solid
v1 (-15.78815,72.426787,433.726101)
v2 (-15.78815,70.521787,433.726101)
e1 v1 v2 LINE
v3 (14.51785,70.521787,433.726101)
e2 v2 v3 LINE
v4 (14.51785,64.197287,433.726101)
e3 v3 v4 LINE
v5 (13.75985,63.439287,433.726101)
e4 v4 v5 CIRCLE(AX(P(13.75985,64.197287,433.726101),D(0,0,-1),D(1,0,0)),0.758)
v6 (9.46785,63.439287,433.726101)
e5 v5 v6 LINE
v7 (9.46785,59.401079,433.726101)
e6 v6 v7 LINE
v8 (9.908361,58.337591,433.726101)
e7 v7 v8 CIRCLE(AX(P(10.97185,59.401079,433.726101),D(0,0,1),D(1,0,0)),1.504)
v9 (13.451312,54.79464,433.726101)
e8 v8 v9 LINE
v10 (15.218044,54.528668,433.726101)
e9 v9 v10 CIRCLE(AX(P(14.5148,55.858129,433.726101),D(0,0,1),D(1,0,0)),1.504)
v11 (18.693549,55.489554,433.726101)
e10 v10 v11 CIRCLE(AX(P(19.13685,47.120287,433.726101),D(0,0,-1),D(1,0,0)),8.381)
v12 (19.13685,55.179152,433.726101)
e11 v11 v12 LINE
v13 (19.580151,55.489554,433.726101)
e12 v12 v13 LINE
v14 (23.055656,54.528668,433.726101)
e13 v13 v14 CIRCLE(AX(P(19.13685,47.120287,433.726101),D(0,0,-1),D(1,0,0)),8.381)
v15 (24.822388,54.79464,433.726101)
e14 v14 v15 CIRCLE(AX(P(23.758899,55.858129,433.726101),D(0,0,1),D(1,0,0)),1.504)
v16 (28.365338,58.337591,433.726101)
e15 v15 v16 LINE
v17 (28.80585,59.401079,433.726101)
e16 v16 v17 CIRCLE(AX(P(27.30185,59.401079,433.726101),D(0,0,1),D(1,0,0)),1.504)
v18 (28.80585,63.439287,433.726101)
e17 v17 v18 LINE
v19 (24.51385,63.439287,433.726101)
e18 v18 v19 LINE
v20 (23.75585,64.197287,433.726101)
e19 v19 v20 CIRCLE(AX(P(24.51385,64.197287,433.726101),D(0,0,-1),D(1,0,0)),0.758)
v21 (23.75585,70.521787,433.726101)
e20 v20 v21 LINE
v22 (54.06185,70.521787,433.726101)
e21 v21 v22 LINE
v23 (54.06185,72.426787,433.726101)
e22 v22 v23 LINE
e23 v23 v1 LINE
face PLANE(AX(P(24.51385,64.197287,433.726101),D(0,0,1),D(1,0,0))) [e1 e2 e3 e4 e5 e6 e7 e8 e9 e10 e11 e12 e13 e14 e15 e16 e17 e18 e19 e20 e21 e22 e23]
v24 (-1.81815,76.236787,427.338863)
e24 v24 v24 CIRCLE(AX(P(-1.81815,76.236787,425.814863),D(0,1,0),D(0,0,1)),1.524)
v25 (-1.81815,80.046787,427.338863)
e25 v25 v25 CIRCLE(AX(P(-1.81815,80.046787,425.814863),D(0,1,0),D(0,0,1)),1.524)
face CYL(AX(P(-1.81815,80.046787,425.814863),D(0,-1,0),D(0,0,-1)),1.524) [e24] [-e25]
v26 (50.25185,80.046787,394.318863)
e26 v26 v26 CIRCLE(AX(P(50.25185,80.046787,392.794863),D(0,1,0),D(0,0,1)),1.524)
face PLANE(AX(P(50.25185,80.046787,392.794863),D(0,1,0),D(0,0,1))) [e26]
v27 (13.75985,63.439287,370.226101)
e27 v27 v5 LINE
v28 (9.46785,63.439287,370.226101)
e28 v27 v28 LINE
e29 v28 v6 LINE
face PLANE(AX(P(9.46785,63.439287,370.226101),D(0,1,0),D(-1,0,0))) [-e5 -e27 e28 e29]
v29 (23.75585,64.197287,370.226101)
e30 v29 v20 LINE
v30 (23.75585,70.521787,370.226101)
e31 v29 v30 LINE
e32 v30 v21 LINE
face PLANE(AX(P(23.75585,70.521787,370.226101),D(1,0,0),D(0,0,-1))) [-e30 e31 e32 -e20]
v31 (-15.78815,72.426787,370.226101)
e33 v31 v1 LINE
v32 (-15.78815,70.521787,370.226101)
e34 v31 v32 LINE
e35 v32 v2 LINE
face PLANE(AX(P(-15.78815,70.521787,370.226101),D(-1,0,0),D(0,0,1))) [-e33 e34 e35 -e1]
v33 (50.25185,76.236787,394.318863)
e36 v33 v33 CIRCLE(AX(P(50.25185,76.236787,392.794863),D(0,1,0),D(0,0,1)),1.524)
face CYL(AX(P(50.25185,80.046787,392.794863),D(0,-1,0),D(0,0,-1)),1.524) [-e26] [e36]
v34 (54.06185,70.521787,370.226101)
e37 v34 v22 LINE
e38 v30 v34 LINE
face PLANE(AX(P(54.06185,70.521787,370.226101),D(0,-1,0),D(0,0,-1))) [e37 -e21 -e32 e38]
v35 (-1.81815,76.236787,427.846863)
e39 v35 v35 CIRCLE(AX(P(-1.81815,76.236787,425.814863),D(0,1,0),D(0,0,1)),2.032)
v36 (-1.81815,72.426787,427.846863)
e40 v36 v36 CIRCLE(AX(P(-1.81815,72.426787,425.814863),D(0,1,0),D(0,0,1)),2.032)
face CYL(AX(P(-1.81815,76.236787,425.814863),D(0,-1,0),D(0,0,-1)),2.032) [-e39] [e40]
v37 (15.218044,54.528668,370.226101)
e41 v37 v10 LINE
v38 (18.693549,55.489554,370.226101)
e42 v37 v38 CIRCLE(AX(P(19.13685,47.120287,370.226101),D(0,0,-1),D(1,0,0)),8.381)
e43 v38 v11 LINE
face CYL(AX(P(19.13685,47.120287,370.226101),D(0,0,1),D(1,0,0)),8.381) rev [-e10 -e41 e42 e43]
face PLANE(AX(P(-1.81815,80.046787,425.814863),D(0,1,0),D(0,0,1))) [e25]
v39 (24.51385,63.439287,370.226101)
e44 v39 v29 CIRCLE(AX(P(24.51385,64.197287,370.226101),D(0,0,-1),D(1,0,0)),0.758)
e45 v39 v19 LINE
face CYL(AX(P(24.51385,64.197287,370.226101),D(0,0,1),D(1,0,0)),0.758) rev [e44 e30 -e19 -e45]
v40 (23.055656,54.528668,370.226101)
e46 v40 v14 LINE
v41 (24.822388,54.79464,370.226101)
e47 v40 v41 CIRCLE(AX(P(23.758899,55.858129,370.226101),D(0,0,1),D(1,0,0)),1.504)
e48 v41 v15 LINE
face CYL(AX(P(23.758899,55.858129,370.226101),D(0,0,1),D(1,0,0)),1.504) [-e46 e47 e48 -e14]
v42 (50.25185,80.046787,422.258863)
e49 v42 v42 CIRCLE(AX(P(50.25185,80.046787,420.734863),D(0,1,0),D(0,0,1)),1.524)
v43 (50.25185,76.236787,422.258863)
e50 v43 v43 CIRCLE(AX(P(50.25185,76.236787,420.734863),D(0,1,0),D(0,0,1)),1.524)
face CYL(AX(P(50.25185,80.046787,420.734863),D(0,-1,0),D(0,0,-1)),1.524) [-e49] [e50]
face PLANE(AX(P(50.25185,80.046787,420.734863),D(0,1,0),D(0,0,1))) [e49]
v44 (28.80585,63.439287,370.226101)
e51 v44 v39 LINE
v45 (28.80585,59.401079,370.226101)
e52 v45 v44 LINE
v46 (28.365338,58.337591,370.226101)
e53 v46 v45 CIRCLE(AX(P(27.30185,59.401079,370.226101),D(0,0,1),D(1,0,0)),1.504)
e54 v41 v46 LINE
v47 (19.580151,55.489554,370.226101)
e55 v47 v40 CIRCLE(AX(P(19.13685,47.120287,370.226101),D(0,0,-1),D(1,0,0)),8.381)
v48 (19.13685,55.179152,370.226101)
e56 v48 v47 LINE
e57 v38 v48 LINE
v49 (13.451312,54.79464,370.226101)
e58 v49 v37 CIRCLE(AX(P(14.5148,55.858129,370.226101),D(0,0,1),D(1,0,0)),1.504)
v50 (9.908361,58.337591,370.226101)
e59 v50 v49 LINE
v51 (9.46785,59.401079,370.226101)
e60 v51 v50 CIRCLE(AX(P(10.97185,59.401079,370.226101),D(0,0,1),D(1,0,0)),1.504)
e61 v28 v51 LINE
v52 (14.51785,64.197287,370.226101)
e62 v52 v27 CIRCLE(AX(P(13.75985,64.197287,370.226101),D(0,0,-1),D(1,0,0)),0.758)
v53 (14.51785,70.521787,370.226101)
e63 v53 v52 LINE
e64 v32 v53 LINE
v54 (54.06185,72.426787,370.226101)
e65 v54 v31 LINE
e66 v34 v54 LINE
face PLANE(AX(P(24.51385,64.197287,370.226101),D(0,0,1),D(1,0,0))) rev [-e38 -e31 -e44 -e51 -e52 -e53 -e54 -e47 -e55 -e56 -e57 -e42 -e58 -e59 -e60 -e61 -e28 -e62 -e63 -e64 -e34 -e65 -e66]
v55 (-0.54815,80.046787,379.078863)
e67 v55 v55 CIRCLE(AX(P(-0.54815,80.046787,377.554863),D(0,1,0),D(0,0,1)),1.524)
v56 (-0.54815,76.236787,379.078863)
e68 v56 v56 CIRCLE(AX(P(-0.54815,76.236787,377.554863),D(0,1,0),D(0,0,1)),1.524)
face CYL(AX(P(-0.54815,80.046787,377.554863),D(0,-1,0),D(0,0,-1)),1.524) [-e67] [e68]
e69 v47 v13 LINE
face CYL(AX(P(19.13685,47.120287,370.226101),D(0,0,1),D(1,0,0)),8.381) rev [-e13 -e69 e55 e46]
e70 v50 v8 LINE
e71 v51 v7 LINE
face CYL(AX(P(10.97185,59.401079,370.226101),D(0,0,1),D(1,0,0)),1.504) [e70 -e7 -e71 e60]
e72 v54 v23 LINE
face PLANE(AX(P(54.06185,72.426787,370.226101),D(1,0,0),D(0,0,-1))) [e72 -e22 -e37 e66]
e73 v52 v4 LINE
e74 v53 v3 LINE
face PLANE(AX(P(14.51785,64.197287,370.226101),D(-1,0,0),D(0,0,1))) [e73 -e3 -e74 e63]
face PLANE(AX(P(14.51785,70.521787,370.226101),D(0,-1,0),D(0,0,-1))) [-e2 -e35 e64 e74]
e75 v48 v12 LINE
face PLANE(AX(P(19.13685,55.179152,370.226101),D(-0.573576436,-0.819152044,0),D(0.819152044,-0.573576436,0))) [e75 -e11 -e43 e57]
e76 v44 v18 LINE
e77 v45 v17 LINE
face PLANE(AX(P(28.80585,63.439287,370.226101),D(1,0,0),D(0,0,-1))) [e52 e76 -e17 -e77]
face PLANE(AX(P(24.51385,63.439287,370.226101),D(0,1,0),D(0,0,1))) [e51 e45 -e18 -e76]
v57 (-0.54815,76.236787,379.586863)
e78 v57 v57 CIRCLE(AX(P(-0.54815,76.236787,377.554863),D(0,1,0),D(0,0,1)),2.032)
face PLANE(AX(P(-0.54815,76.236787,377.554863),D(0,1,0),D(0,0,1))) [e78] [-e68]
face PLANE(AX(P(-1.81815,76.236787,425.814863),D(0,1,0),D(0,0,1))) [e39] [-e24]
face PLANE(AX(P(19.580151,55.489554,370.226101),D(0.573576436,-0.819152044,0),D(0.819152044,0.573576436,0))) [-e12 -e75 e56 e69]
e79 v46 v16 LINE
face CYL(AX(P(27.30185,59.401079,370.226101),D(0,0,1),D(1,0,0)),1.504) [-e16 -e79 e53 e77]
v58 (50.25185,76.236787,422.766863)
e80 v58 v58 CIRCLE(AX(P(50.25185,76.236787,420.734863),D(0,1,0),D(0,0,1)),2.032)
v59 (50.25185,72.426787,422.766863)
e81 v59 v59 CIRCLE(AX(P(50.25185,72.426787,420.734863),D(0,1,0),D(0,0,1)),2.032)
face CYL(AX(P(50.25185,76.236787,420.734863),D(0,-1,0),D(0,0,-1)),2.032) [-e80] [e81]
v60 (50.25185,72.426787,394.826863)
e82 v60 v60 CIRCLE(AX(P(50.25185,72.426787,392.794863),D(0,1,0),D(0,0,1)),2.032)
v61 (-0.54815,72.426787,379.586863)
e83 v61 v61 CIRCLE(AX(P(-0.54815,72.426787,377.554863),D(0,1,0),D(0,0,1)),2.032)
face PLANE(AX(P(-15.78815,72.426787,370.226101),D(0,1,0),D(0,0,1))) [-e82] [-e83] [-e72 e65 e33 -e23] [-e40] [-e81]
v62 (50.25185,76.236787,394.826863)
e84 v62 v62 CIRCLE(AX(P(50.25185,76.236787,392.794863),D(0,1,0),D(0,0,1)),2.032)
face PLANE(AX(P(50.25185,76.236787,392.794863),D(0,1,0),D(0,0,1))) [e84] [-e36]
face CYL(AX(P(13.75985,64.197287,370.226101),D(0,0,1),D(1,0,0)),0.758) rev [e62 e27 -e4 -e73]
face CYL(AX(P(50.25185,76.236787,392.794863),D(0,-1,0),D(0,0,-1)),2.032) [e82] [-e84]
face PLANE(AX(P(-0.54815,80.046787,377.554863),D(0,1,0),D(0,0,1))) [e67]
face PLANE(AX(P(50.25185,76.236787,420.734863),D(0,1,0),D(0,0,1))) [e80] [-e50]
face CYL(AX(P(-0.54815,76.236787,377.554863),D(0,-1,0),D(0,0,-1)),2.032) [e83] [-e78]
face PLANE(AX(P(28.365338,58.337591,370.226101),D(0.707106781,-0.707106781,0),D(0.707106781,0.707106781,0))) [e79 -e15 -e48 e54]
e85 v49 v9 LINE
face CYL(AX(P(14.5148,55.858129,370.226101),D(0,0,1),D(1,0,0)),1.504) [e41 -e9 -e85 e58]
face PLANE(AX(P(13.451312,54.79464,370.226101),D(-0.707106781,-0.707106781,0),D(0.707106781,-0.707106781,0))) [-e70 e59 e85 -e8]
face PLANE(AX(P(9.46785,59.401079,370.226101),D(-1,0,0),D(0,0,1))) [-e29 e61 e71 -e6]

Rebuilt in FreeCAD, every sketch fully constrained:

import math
import FreeCAD as App
import Part
import Sketcher

V = App.Vector
Q = App.Units.Quantity

doc = App.newDocument("Part")
body = doc.addObject("PartDesign::Body", "Body")

# Sketch on XY plane
sketch1 = body.newObject("Sketcher::SketchObject", "Sketch")
sketch1.AttachmentSupport = (doc.getObject("XY_Plane"), [""])
sketch1.MapMode = "FlatFace"
sketch1.AttachmentOffset = App.Placement(V(0, 0, 433.726101), App.Rotation())
sketch1.addGeometry([
    Part.ArcOfCircle(Part.Circle(V(13.75985, 64.197287, 0), V(0, 0, 1), 0.758), math.radians(-90), math.radians(0)),  # 0
    Part.LineSegment(V(13.75985, 63.439287, 0), V(9.46785, 63.439287, 0)),  # 1
    Part.LineSegment(V(9.46785, 63.439287, 0), V(9.46785, 59.401079, 0)),  # 2
    Part.ArcOfCircle(Part.Circle(V(10.97185, 59.401079, 0), V(0, 0, 1), 1.504), math.radians(180), math.radians(225)),  # 3
    Part.LineSegment(V(9.908361, 58.337591, 0), V(13.451312, 54.79464, 0)),  # 4
    Part.ArcOfCircle(Part.Circle(V(14.5148, 55.858129, 0), V(0, 0, 1), 1.504), math.radians(-135), math.radians(-62.122538)),  # 5
    Part.ArcOfCircle(Part.Circle(V(19.13685, 47.120287, 0), V(0, 0, 1), 8.381), math.radians(93.031994), math.radians(117.877462)),  # 6
    Part.LineSegment(V(18.693549, 55.489554, 0), V(19.13685, 55.179152, 0)),  # 7
    Part.LineSegment(V(19.13685, 55.179152, 0), V(19.580151, 55.489554, 0)),  # 8
    Part.ArcOfCircle(Part.Circle(V(19.13685, 47.120287, 0), V(0, 0, 1), 8.381), math.radians(62.122538), math.radians(86.968006)),  # 9
    Part.ArcOfCircle(Part.Circle(V(23.758899, 55.858129, 0), V(0, 0, 1), 1.504), math.radians(-117.877462), math.radians(-45)),  # 10
    Part.LineSegment(V(24.822388, 54.79464, 0), V(28.365338, 58.337591, 0)),  # 11
    Part.ArcOfCircle(Part.Circle(V(27.30185, 59.401079, 0), V(0, 0, 1), 1.504), math.radians(-45), math.radians(0)),  # 12
    Part.LineSegment(V(28.80585, 59.401079, 0), V(28.80585, 63.439287, 0)),  # 13
    Part.LineSegment(V(28.80585, 63.439287, 0), V(24.51385, 63.439287, 0)),  # 14
    Part.ArcOfCircle(Part.Circle(V(24.51385, 64.197287, 0), V(0, 0, 1), 0.758), math.radians(180), math.radians(270)),  # 15
    Part.LineSegment(V(23.75585, 64.197287, 0), V(23.75585, 70.521787, 0)),  # 16
    Part.LineSegment(V(23.75585, 70.521787, 0), V(54.06185, 70.521787, 0)),  # 17
    Part.LineSegment(V(54.06185, 70.521787, 0), V(54.06185, 72.426787, 0)),  # 18
    Part.LineSegment(V(54.06185, 72.426787, 0), V(-15.78815, 72.426787, 0)),  # 19
    Part.LineSegment(V(-15.78815, 72.426787, 0), V(-15.78815, 70.521787, 0)),  # 20
    Part.LineSegment(V(-15.78815, 70.521787, 0), V(14.51785, 70.521787, 0)),  # 21
    Part.LineSegment(V(14.51785, 70.521787, 0), V(14.51785, 64.197287, 0)),  # 22
], False)
sketch1.addConstraint([
    Sketcher.Constraint("Tangent", 0, 1, 1, 1),
    Sketcher.Constraint("Coincident", 1, 2, 2, 1),
    Sketcher.Constraint("Tangent", 2, 2, 3, 1),
    Sketcher.Constraint("Tangent", 3, 2, 4, 1),
    Sketcher.Constraint("Tangent", 4, 2, 5, 1),
    Sketcher.Constraint("Tangent", 5, 2, 6, 2),
    Sketcher.Constraint("Coincident", 6, 1, 7, 1),
    Sketcher.Constraint("Coincident", 7, 2, 8, 1),
    Sketcher.Constraint("Coincident", 8, 2, 9, 2),
    Sketcher.Constraint("Tangent", 9, 1, 10, 1),
    Sketcher.Constraint("Tangent", 10, 2, 11, 1),
    Sketcher.Constraint("Tangent", 11, 2, 12, 1),
    Sketcher.Constraint("Tangent", 12, 2, 13, 1),
    Sketcher.Constraint("Coincident", 13, 2, 14, 1),
    Sketcher.Constraint("Tangent", 14, 2, 15, 2),
    Sketcher.Constraint("Tangent", 15, 1, 16, 1),
    Sketcher.Constraint("Coincident", 16, 2, 17, 1),
    Sketcher.Constraint("Coincident", 17, 2, 18, 1),
    Sketcher.Constraint("Coincident", 18, 2, 19, 1),
    Sketcher.Constraint("Coincident", 19, 2, 20, 1),
    Sketcher.Constraint("Coincident", 20, 2, 21, 1),
    Sketcher.Constraint("Coincident", 21, 2, 22, 1),
    Sketcher.Constraint("Tangent", 22, 2, 0, 2),
    Sketcher.Constraint("Horizontal", 1),
    Sketcher.Constraint("Vertical", 2),
    Sketcher.Constraint("Vertical", 13),
    Sketcher.Constraint("Horizontal", 14),
    Sketcher.Constraint("Vertical", 16),
    Sketcher.Constraint("Horizontal", 17),
    Sketcher.Constraint("Vertical", 18),
    Sketcher.Constraint("Horizontal", 19),
    Sketcher.Constraint("Vertical", 20),
    Sketcher.Constraint("Horizontal", 21),
    Sketcher.Constraint("Vertical", 22),
    Sketcher.Constraint("Coincident", 9, 3, 6, 3),
    Sketcher.Constraint("Equal", 3, 5),
    Sketcher.Constraint("Equal", 6, 9),
    Sketcher.Constraint("Equal", 5, 10),
    Sketcher.Constraint("Equal", 10, 12),
    Sketcher.Constraint("Equal", 0, 15),
    Sketcher.Constraint("Perpendicular", 4, 11),
    Sketcher.Constraint("Horizontal", 5, 3, 10, 3),
    Sketcher.Constraint("Horizontal", 3, 3, 12, 3),
    Sketcher.Constraint("Horizontal", 0, 3, 15, 3),
    Sketcher.Constraint("Horizontal", 6, 1, 8, 2),
    Sketcher.Constraint("Horizontal", 4, 2, 10, 2),
    Sketcher.Constraint("Horizontal", 17, 2, 20, 2),
    Sketcher.Constraint("Vertical", 9, 3, 7, 2),
    Sketcher.Constraint("Equal", 1, 14),
    Sketcher.Constraint("Equal", 17, 21),
    Sketcher.Constraint("Angle", 7, Q("-35 deg")),
    Sketcher.Constraint("DistanceX", 19, 2, 19, 1, Q("2.75 in")),
    Sketcher.Constraint("DistanceY", 18, 1, 18, 2, Q("0.075 in")),
    Sketcher.Constraint("Radius", 0, 0.758),
    Sketcher.Constraint("Radius", 3, 1.504),
    Sketcher.Constraint("Radius", 6, 8.381),
    Sketcher.Constraint("DistanceX", 1, 2, 1, 1, 4.292),
    Sketcher.Constraint("DistanceX", 17, 1, 17, 2, 30.306),
    Sketcher.Constraint("DistanceY", 16, 1, 16, 2, 6.3245),
    Sketcher.Constraint("DistanceX", -1, 1, 5, 3, 14.5148),
    Sketcher.Constraint("DistanceX", -1, 1, 10, 3, 23.758899),
    Sketcher.Constraint("DistanceY", 6, 3, 0, 3, 17.077),
    Sketcher.Constraint("DistanceX", 6, 1, 6, 3, 0.443301),
    Sketcher.Constraint("DistanceY", -1, 1, 3, 3, 59.401079),
])
pad1 = body.newObject("PartDesign::Pad", "Pad")
pad1.Profile = sketch1
pad1.Length = Q("2.5 in")
pad1.Reversed = True

# Sketch on XZ plane
sketch2 = body.newObject("Sketcher::SketchObject", "Sketch001")
sketch2.AttachmentSupport = (doc.getObject("XZ_Plane"), [""])
sketch2.MapMode = "FlatFace"
sketch2.AttachmentOffset = App.Placement(V(0, 0, -72.426787), App.Rotation())
sketch2.addGeometry([
    Part.Circle(V(-0.54815, 377.554863, 0), V(0, 0, 1), 1.524),
    Part.Circle(V(50.25185, 392.794863, 0), V(0, 0, 1), 1.524),
    Part.Circle(V(50.25185, 420.734863, 0), V(0, 0, 1), 1.524),
    Part.Circle(V(-1.81815, 425.814863, 0), V(0, 0, 1), 1.524),
], False)
sketch2.addConstraint([
    Sketcher.Constraint("Equal", 0, 1),
    Sketcher.Constraint("Equal", 1, 2),
    Sketcher.Constraint("Equal", 2, 3),
    Sketcher.Constraint("Vertical", 1, 3, 2, 3),
    Sketcher.Constraint("Diameter", 0, Q("0.12 in")),
    Sketcher.Constraint("DistanceX", 0, 3, 1, 3, Q("2 in")),
    Sketcher.Constraint("DistanceY", 0, 3, 1, 3, Q("0.6 in")),
    Sketcher.Constraint("DistanceY", 1, 3, 2, 3, Q("1.1 in")),
    Sketcher.Constraint("DistanceY", 0, 3, 3, 3, Q("1.9 in")),
    Sketcher.Constraint("DistanceX", 3, 3, 0, 3, Q("0.05 in")),
    Sketcher.Constraint("DistanceX", 0, 3, -1, 1, 0.54815),
    Sketcher.Constraint("DistanceY", -1, 1, 0, 3, 377.554863),
])
pad2 = body.newObject("PartDesign::Pad", "Pad001")
pad2.Profile = sketch2
pad2.Length = Q("0.3 in")
pad2.Reversed = True

# Sketch on XZ plane
sketch3 = body.newObject("Sketcher::SketchObject", "Sketch002")
sketch3.AttachmentSupport = (doc.getObject("XZ_Plane"), [""])
sketch3.MapMode = "FlatFace"
sketch3.AttachmentOffset = App.Placement(V(0, 0, -72.426787), App.Rotation())
sketch3.addGeometry([
    Part.Circle(V(-0.54815, 377.554863, 0), V(0, 0, 1), 2.032),
    Part.Circle(V(50.25185, 392.794863, 0), V(0, 0, 1), 2.032),
    Part.Circle(V(50.25185, 420.734863, 0), V(0, 0, 1), 2.032),
    Part.Circle(V(-1.81815, 425.814863, 0), V(0, 0, 1), 2.032),
], False)
sketch3.addConstraint([
    Sketcher.Constraint("Equal", 0, 1),
    Sketcher.Constraint("Equal", 1, 2),
    Sketcher.Constraint("Equal", 2, 3),
    Sketcher.Constraint("Vertical", 1, 3, 2, 3),
    Sketcher.Constraint("Diameter", 0, Q("0.16 in")),
    Sketcher.Constraint("DistanceX", 0, 3, 1, 3, Q("2 in")),
    Sketcher.Constraint("DistanceY", 0, 3, 1, 3, Q("0.6 in")),
    Sketcher.Constraint("DistanceY", 1, 3, 2, 3, Q("1.1 in")),
    Sketcher.Constraint("DistanceY", 0, 3, 3, 3, Q("1.9 in")),
    Sketcher.Constraint("DistanceX", 3, 3, 0, 3, Q("0.05 in")),
    Sketcher.Constraint("DistanceX", 0, 3, -1, 1, 0.54815),
    Sketcher.Constraint("DistanceY", -1, 1, 0, 3, 377.554863),
])
pad3 = body.newObject("PartDesign::Pad", "Pad002")
pad3.Profile = sketch3
pad3.Length = Q("0.15 in")
pad3.Reversed = True

doc.recompute()
